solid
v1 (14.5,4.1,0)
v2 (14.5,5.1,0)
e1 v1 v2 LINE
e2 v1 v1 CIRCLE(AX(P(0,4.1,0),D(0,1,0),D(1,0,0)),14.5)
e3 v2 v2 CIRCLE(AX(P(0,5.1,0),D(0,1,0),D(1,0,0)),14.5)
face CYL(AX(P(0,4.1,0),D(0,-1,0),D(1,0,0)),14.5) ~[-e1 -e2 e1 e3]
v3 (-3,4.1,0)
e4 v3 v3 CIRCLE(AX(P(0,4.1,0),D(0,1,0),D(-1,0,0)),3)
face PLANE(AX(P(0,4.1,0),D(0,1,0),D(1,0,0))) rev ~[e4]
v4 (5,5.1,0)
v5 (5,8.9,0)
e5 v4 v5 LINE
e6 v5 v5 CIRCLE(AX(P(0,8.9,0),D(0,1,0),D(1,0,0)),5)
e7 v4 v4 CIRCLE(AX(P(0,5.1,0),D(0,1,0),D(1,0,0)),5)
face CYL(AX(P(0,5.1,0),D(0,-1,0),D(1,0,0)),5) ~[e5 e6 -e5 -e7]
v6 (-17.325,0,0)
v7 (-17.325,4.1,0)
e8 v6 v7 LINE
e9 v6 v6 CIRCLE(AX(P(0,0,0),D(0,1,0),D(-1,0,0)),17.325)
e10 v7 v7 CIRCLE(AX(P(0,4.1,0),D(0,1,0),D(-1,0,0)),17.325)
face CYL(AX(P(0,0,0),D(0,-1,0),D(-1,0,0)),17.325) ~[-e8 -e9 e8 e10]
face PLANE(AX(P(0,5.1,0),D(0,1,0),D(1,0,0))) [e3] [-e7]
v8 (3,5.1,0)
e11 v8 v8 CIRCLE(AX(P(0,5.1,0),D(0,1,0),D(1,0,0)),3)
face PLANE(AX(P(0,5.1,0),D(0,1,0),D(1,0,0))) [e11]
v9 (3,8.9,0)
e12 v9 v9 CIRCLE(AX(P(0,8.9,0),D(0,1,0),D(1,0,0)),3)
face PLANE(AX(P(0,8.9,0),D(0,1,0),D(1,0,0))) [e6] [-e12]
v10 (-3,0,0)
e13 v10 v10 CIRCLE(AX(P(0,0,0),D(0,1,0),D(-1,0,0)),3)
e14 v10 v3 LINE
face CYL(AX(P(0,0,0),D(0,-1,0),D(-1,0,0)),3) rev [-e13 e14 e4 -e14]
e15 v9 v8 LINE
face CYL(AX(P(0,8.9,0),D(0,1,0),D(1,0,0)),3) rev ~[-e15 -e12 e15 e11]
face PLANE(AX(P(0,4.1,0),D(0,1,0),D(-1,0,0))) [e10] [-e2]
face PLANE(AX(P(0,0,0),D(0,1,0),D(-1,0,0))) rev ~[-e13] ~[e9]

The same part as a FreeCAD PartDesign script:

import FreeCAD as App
import Part
import Sketcher
from FreeCAD import Vector
Q = App.Units.Quantity

doc = App.newDocument("Part")
params = doc.addObject("Spreadsheet::Sheet", "Params")
for row, (alias, value) in enumerate([
    ("sketch1_diameter", "6 mm"),
    ("sketch1_diameter2", "34.65 mm"),
    ("pad1_length", "4.1 mm"),
    ("sketch2_diameter", "29 mm"),
    ("sketch2_diameter2", "6 mm"),
    ("pad2_length", "1 mm"),
    ("sketch3_diameter", "6 mm"),
    ("pad3_length", "1 mm"),
    ("sketch4_diameter", "10 mm"),
    ("pad4_length", "3.8 mm"),
    ("sketch5_diameter", "6 mm"),
    ("pocket1_length", "3.8 mm"),
], start=1):
    params.set(f"A{row}", alias)
    params.set(f"B{row}", "=" + value)
    params.setAlias(f"B{row}", alias)

body = doc.addObject("PartDesign::Body", "Body")

# Sketch on XZ plane
sketch1 = body.newObject("Sketcher::SketchObject", "Sketch")
sketch1.AttachmentSupport = (doc.getObject("XZ_Plane"), [""])
sketch1.MapMode = "FlatFace"
sketch1.addGeometry(Part.Circle(Vector(0, 0, 0), Vector(0, 0, 1), 17.3), False)
sketch1.addGeometry(Part.Circle(Vector(0, 0, 0), Vector(0, 0, 1), 3), False)
sketch1.addConstraint(Sketcher.Constraint("Coincident", 0, 3, -1, 1))
sketch1.addConstraint(Sketcher.Constraint("Coincident", 1, 3, -1, 1))
sketch1.addConstraint(Sketcher.Constraint("Diameter", 1, Q("6 mm")))
sketch1.addConstraint(Sketcher.Constraint("Diameter", 0, Q("34.65 mm")))
sketch1.setExpression("Constraints[2]", "Params.sketch1_diameter")
sketch1.setExpression("Constraints[3]", "Params.sketch1_diameter2")
pad1 = body.newObject("PartDesign::Pad", "Pad")
pad1.Profile = sketch1
pad1.setExpression("Length", "Params.pad1_length")
pad1.Reversed = True

# Sketch on XZ plane
sketch2 = body.newObject("Sketcher::SketchObject", "Sketch001")
sketch2.AttachmentSupport = (doc.getObject("XZ_Plane"), [""])
sketch2.MapMode = "FlatFace"
sketch2.AttachmentOffset = App.Placement(Vector(0, 0, -4.1), App.Rotation())
sketch2.addGeometry(Part.Circle(Vector(0, 0, 0), Vector(0, 0, 1), 14.5), False)
sketch2.addGeometry(Part.Circle(Vector(0, 0, 0), Vector(0, 0, 1), 3), False)
sketch2.addConstraint(Sketcher.Constraint("Coincident", 0, 3, -1, 1))
sketch2.addConstraint(Sketcher.Constraint("Coincident", 1, 3, -1, 1))
sketch2.addConstraint(Sketcher.Constraint("Diameter", 0, Q("29 mm")))
sketch2.addConstraint(Sketcher.Constraint("Diameter", 1, Q("6 mm")))
sketch2.setExpression("Constraints[2]", "Params.sketch2_diameter")
sketch2.setExpression("Constraints[3]", "Params.sketch2_diameter2")
pad2 = body.newObject("PartDesign::Pad", "Pad001")
pad2.Profile = sketch2
pad2.setExpression("Length", "Params.pad2_length")
pad2.Reversed = True

# Sketch on XZ plane
sketch3 = body.newObject("Sketcher::SketchObject", "Sketch002")
sketch3.AttachmentSupport = (doc.getObject("XZ_Plane"), [""])
sketch3.MapMode = "FlatFace"
sketch3.AttachmentOffset = App.Placement(Vector(0, 0, -5.1), App.Rotation())
sketch3.addGeometry(Part.Circle(Vector(0, 0, 0), Vector(0, 0, 1), 3), False)
sketch3.addConstraint(Sketcher.Constraint("Coincident", 0, 3, -1, 1))
sketch3.addConstraint(Sketcher.Constraint("Diameter", 0, Q("6 mm")))
sketch3.setExpression("Constraints[1]", "Params.sketch3_diameter")
pad3 = body.newObject("PartDesign::Pad", "Pad002")
pad3.Profile = sketch3
pad3.setExpression("Length", "Params.pad3_length")

# Sketch on XZ plane
sketch4 = body.newObject("Sketcher::SketchObject", "Sketch003")
sketch4.AttachmentSupport = (doc.getObject("XZ_Plane"), [""])
sketch4.MapMode = "FlatFace"
sketch4.AttachmentOffset = App.Placement(Vector(0, 0, -5.1), App.Rotation())
sketch4.addGeometry(Part.Circle(Vector(0, 0, 0), Vector(0, 0, 1), 5), False)
sketch4.addConstraint(Sketcher.Constraint("Coincident", 0, 3, -1, 1))
sketch4.addConstraint(Sketcher.Constraint("Diameter", 0, Q("10 mm")))
sketch4.setExpression("Constraints[1]", "Params.sketch4_diameter")
pad4 = body.newObject("PartDesign::Pad", "Pad003")
pad4.Profile = sketch4
pad4.setExpression("Length", "Params.pad4_length")
pad4.Reversed = True

# Sketch on XZ plane
sketch5 = body.newObject("Sketcher::SketchObject", "Sketch004")
sketch5.AttachmentSupport = (doc.getObject("XZ_Plane"), [""])
sketch5.MapMode = "FlatFace"
sketch5.AttachmentOffset = App.Placement(Vector(0, 0, -8.9), App.Rotation())
sketch5.addGeometry(Part.Circle(Vector(0, 0, 0), Vector(0, 0, 1), 3), False)
sketch5.addConstraint(Sketcher.Constraint("Coincident", 0, 3, -1, 1))
sketch5.addConstraint(Sketcher.Constraint("Diameter", 0, Q("6 mm")))
sketch5.setExpression("Constraints[1]", "Params.sketch5_diameter")
pocket1 = body.newObject("PartDesign::Pocket", "Pocket")
pocket1.Profile = sketch5
pocket1.setExpression("Length", "Params.pocket1_length")
pocket1.Reversed = True

doc.recompute()
